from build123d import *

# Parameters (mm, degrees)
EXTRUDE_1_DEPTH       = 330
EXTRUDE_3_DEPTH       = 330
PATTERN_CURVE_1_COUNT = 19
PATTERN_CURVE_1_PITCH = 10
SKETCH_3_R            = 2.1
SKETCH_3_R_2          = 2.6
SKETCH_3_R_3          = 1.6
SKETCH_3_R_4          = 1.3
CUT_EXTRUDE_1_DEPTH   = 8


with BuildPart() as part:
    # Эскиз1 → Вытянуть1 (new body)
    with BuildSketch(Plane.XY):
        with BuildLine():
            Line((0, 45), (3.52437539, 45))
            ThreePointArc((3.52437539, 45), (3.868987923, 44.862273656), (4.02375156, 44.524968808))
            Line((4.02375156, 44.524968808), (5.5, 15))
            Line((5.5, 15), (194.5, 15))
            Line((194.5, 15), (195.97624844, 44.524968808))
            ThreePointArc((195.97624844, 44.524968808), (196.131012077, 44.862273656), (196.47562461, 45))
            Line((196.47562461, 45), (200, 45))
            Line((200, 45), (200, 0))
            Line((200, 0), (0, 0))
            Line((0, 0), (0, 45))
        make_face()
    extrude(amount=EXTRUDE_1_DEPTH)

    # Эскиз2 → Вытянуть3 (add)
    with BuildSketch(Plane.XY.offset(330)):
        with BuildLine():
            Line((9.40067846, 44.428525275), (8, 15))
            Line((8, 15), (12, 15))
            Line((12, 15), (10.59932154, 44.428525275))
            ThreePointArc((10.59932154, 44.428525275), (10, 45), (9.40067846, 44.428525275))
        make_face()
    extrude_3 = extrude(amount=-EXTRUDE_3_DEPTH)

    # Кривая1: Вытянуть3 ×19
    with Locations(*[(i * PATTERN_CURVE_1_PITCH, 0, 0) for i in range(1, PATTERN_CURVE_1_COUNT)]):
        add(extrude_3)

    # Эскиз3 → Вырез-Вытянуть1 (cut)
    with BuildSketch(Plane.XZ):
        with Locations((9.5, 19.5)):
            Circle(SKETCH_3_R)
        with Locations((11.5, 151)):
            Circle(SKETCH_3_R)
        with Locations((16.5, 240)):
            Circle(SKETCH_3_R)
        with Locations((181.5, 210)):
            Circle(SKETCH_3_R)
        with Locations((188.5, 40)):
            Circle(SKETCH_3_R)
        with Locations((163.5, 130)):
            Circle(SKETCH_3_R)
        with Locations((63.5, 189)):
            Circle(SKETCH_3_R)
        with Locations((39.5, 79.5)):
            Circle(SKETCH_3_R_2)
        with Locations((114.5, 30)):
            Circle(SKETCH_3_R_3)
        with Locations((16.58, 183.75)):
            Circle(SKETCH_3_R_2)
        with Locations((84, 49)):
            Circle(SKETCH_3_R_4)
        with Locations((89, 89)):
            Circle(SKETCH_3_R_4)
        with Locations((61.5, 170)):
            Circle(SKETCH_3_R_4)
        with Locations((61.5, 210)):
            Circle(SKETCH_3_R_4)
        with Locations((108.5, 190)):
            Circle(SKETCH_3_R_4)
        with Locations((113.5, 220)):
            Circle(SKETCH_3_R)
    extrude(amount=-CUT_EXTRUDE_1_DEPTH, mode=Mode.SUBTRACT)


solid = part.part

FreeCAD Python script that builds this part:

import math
import FreeCAD as App
import Part
import Sketcher
Q = App.Units.Quantity

doc = App.newDocument("Part")
body = doc.addObject("PartDesign::Body", "Body")

# Sketch on XY plane
sketch1 = body.newObject("Sketcher::SketchObject", "Sketch")
sketch1.AttachmentSupport = (doc.getObject("XY_Plane"), [""])
sketch1.MapMode = "FlatFace"
sketch1.addGeometry(Part.LineSegment(App.Vector(3.5, 45, 0), App.Vector(0, 45, 0)), False)
sketch1.addGeometry(Part.LineSegment(App.Vector(0, 45, 0), App.Vector(0, 0, 0)), False)
sketch1.addGeometry(Part.LineSegment(App.Vector(0, 0, 0), App.Vector(200, 0, 0)), False)
sketch1.addGeometry(Part.LineSegment(App.Vector(200, 0, 0), App.Vector(200, 45, 0)), False)
sketch1.addGeometry(Part.LineSegment(App.Vector(200, 45, 0), App.Vector(196.5, 45, 0)), False)
sketch1.addGeometry(Part.ArcOfCircle(Part.Circle(App.Vector(196.5, 44.5, 0), App.Vector(0, 0, 1), 0.5), math.radians(90), math.radians(177)), False)
sketch1.addGeometry(Part.LineSegment(App.Vector(196, 44.5, 0), App.Vector(194.5, 15, 0)), False)
sketch1.addGeometry(Part.LineSegment(App.Vector(194.5, 15, 0), App.Vector(5.5, 15, 0)), False)
sketch1.addGeometry(Part.LineSegment(App.Vector(5.5, 15, 0), App.Vector(4, 44.5, 0)), False)
sketch1.addGeometry(Part.ArcOfCircle(Part.Circle(App.Vector(3.5, 44.5, 0), App.Vector(0, 0, 1), 0.5), math.radians(3), math.radians(90)), False)
sketch1.addConstraint(Sketcher.Constraint("Coincident", 0, 2, 1, 1))
sketch1.addConstraint(Sketcher.Constraint("Coincident", 1, 2, 2, 1))
sketch1.addConstraint(Sketcher.Constraint("Coincident", 2, 2, 3, 1))
sketch1.addConstraint(Sketcher.Constraint("Coincident", 3, 2, 4, 1))
sketch1.addConstraint(Sketcher.Constraint("Tangent", 4, 2, 5, 1))
sketch1.addConstraint(Sketcher.Constraint("Tangent", 5, 2, 6, 1))
sketch1.addConstraint(Sketcher.Constraint("Coincident", 6, 2, 7, 1))
sketch1.addConstraint(Sketcher.Constraint("Coincident", 7, 2, 8, 1))
sketch1.addConstraint(Sketcher.Constraint("Tangent", 8, 2, 9, 1))
sketch1.addConstraint(Sketcher.Constraint("Tangent", 9, 2, 0, 1))
sketch1.addConstraint(Sketcher.Constraint("Horizontal", 0))
sketch1.addConstraint(Sketcher.Constraint("Vertical", 1))
sketch1.addConstraint(Sketcher.Constraint("Horizontal", 2))
sketch1.addConstraint(Sketcher.Constraint("Vertical", 3))
sketch1.addConstraint(Sketcher.Constraint("Horizontal", 4))
sketch1.addConstraint(Sketcher.Constraint("Horizontal", 7))
sketch1.addConstraint(Sketcher.Constraint("Coincident", 1, 2, -1, 1))
sketch1.addConstraint(Sketcher.Constraint("Equal", 5, 9))
sketch1.addConstraint(Sketcher.Constraint("Horizontal", 5, 3, 9, 3))
sketch1.addConstraint(Sketcher.Constraint("Horizontal", 5, 2, 8, 2))
sketch1.addConstraint(Sketcher.Constraint("Equal", 0, 4))
sketch1.addConstraint(Sketcher.Constraint("Radius", 5, Q("0.5 mm")))
sketch1.addConstraint(Sketcher.Constraint("DistanceX", 2, 1, 2, 2, Q("200 mm")))
sketch1.addConstraint(Sketcher.Constraint("DistanceX", 7, 2, 7, 1, Q("189 mm")))
sketch1.addConstraint(Sketcher.Constraint("DistanceY", 1, 2, 1, 1, Q("45 mm")))
sketch1.addConstraint(Sketcher.Constraint("DistanceY", -1, 1, 6, 2, Q("15 mm")))
sketch1.addConstraint(Sketcher.Constraint("Distance", 6, Q("29.561852 mm")))
pad1 = body.newObject("PartDesign::Pad", "Pad")
pad1.Profile = sketch1
pad1.Length = 330

# Sketch on XY plane
sketch2 = body.newObject("Sketcher::SketchObject", "Sketch001")
sketch2.AttachmentSupport = (doc.getObject("XY_Plane"), [""])
sketch2.MapMode = "FlatFace"
sketch2.AttachmentOffset = App.Placement(App.Vector(0, 0, 330), App.Rotation())
sketch2.addGeometry(Part.LineSegment(App.Vector(9.4, 44.4, 0), App.Vector(8, 15, 0)), False)
sketch2.addGeometry(Part.LineSegment(App.Vector(8, 15, 0), App.Vector(12, 15, 0)), False)
sketch2.addGeometry(Part.LineSegment(App.Vector(12, 15, 0), App.Vector(10.6, 44.4, 0)), False)
sketch2.addGeometry(Part.ArcOfCircle(Part.Circle(App.Vector(10, 44.4, 0), App.Vector(0, 0, 1), 0.6), math.radians(3), math.radians(177)), False)
sketch2.addConstraint(Sketcher.Constraint("Coincident", 0, 2, 1, 1))
sketch2.addConstraint(Sketcher.Constraint("Coincident", 1, 2, 2, 1))
sketch2.addConstraint(Sketcher.Constraint("Tangent", 2, 2, 3, 1))
sketch2.addConstraint(Sketcher.Constraint("Tangent", 3, 2, 0, 1))
sketch2.addConstraint(Sketcher.Constraint("Horizontal", 1))
sketch2.addConstraint(Sketcher.Constraint("Horizontal", 2, 2, 3, 2))
sketch2.addConstraint(Sketcher.Constraint("Radius", 3, Q("0.6 mm")))
sketch2.addConstraint(Sketcher.Constraint("DistanceX", 1, 1, 1, 2, Q("4 mm")))
sketch2.addConstraint(Sketcher.Constraint("DistanceX", -1, 1, 3, 3, Q("10 mm")))
sketch2.addConstraint(Sketcher.Constraint("DistanceY", -1, 1, 0, 2, Q("15 mm")))
sketch2.addConstraint(Sketcher.Constraint("DistanceY", -1, 1, 3, 3, Q("44.4 mm")))
pad2 = body.newObject("PartDesign::Pad", "Pad001")
pad2.Profile = sketch2
pad2.Length = 330
pad2.Reversed = True
doc.recompute()

linearpattern = body.newObject("PartDesign::LinearPattern", "LinearPattern")
linearpattern.Originals = [pad2]
linearpattern.Direction = (doc.getObject("X_Axis"), [""])
linearpattern.Mode = "offset"
linearpattern.Offset = 10
linearpattern.Occurrences = 19
body.Tip = linearpattern

# Sketch on XZ plane
sketch3 = body.newObject("Sketcher::SketchObject", "Sketch002")
sketch3.AttachmentSupport = (doc.getObject("XZ_Plane"), [""])
sketch3.MapMode = "FlatFace"
sketch3.addGeometry(Part.Circle(App.Vector(9.5, 19.5, 0), App.Vector(0, 0, 1), 2.1), False)
sketch3.addGeometry(Part.Circle(App.Vector(11.5, 151, 0), App.Vector(0, 0, 1), 2.1), False)
sketch3.addGeometry(Part.Circle(App.Vector(16.5, 240, 0), App.Vector(0, 0, 1), 2.1), False)
sketch3.addGeometry(Part.Circle(App.Vector(181.5, 210, 0), App.Vector(0, 0, 1), 2.1), False)
sketch3.addGeometry(Part.Circle(App.Vector(188.5, 40, 0), App.Vector(0, 0, 1), 2.1), False)
sketch3.addGeometry(Part.Circle(App.Vector(163.5, 130, 0), App.Vector(0, 0, 1), 2.1), False)
sketch3.addGeometry(Part.Circle(App.Vector(63.5, 189, 0), App.Vector(0, 0, 1), 2.1), False)
sketch3.addGeometry(Part.Circle(App.Vector(39.5, 79.5, 0), App.Vector(0, 0, 1), 2.6), False)
sketch3.addGeometry(Part.Circle(App.Vector(114.5, 30, 0), App.Vector(0, 0, 1), 1.6), False)
sketch3.addGeometry(Part.Circle(App.Vector(16.6, 183.8, 0), App.Vector(0, 0, 1), 2.6), False)
sketch3.addGeometry(Part.Circle(App.Vector(84, 49, 0), App.Vector(0, 0, 1), 1.3), False)
sketch3.addGeometry(Part.Circle(App.Vector(89, 89, 0), App.Vector(0, 0, 1), 1.3), False)
sketch3.addGeometry(Part.Circle(App.Vector(61.5, 170, 0), App.Vector(0, 0, 1), 1.3), False)
sketch3.addGeometry(Part.Circle(App.Vector(61.5, 210, 0), App.Vector(0, 0, 1), 1.3), False)
sketch3.addGeometry(Part.Circle(App.Vector(108.5, 190, 0), App.Vector(0, 0, 1), 1.3), False)
sketch3.addGeometry(Part.Circle(App.Vector(113.5, 220, 0), App.Vector(0, 0, 1), 2.1), False)
sketch3.addConstraint(Sketcher.Constraint("Equal", 0, 1))
sketch3.addConstraint(Sketcher.Constraint("Equal", 1, 2))
sketch3.addConstraint(Sketcher.Constraint("Equal", 2, 3))
sketch3.addConstraint(Sketcher.Constraint("Equal", 3, 4))
sketch3.addConstraint(Sketcher.Constraint("Equal", 4, 5))
sketch3.addConstraint(Sketcher.Constraint("Equal", 5, 6))
sketch3.addConstraint(Sketcher.Constraint("Equal", 7, 9))
sketch3.addConstraint(Sketcher.Constraint("Equal", 10, 11))
sketch3.addConstraint(Sketcher.Constraint("Equal", 11, 12))
sketch3.addConstraint(Sketcher.Constraint("Equal", 12, 13))
sketch3.addConstraint(Sketcher.Constraint("Equal", 13, 14))
sketch3.addConstraint(Sketcher.Constraint("Equal", 6, 15))
sketch3.addConstraint(Sketcher.Constraint("Horizontal", 3, 3, 13, 3))
sketch3.addConstraint(Sketcher.Constraint("Vertical", 12, 3, 13, 3))
sketch3.addConstraint(Sketcher.Constraint("Diameter", 0, Q("4.2 mm")))
sketch3.addConstraint(Sketcher.Constraint("Diameter", 7, Q("5.2 mm")))
sketch3.addConstraint(Sketcher.Constraint("Diameter", 8, Q("3.2 mm")))
sketch3.addConstraint(Sketcher.Constraint("Diameter", 10, Q("2.6 mm")))
sketch3.addConstraint(Sketcher.Constraint("DistanceY", -1, 1, 1, 3, Q("151 mm")))
sketch3.addConstraint(Sketcher.Constraint("DistanceY", -1, 1, 2, 3, Q("240 mm")))
sketch3.addConstraint(Sketcher.Constraint("DistanceY", -1, 1, 3, 3, Q("210 mm")))
sketch3.addConstraint(Sketcher.Constraint("DistanceY", -1, 1, 4, 3, Q("40 mm")))
sketch3.addConstraint(Sketcher.Constraint("DistanceY", -1, 1, 5, 3, Q("130 mm")))
sketch3.addConstraint(Sketcher.Constraint("DistanceY", -1, 1, 6, 3, Q("189 mm")))
sketch3.addConstraint(Sketcher.Constraint("DistanceY", -1, 1, 8, 3, Q("30 mm")))
sketch3.addConstraint(Sketcher.Constraint("DistanceX", -1, 1, 10, 3, Q("84 mm")))
sketch3.addConstraint(Sketcher.Constraint("DistanceY", -1, 1, 10, 3, Q("49 mm")))
sketch3.addConstraint(Sketcher.Constraint("DistanceX", -1, 1, 11, 3, Q("89 mm")))
sketch3.addConstraint(Sketcher.Constraint("DistanceY", -1, 1, 11, 3, Q("89 mm")))
sketch3.addConstraint(Sketcher.Constraint("DistanceY", -1, 1, 12, 3, Q("170 mm")))
sketch3.addConstraint(Sketcher.Constraint("DistanceY", -1, 1, 14, 3, Q("190 mm")))
sketch3.addConstraint(Sketcher.Constraint("DistanceY", -1, 1, 15, 3, Q("220 mm")))
sketch3.addConstraint(Sketcher.Constraint("DistanceX", 0, 3, 1, 3, Q("2 mm")))
sketch3.addConstraint(Sketcher.Constraint("DistanceX", 1, 3, 2, 3, Q("5 mm")))
sketch3.addConstraint(Sketcher.Constraint("DistanceX", 2, 3, 3, 3, Q("165 mm")))
sketch3.addConstraint(Sketcher.Constraint("DistanceX", 3, 3, 4, 3, Q("7 mm")))
sketch3.addConstraint(Sketcher.Constraint("DistanceX", 5, 3, 3, 3, Q("18 mm")))
sketch3.addConstraint(Sketcher.Constraint("DistanceX", 1, 3, 6, 3, Q("52 mm")))
sketch3.addConstraint(Sketcher.Constraint("DistanceX", 0, 3, 7, 3, Q("30 mm")))
sketch3.addConstraint(Sketcher.Constraint("DistanceY", 0, 3, 7, 3, Q("60 mm")))
sketch3.addConstraint(Sketcher.Constraint("DistanceX", 8, 3, 4, 3, Q("74 mm")))
sketch3.addConstraint(Sketcher.Constraint("DistanceX", 12, 3, 6, 3, Q("2 mm")))
sketch3.addConstraint(Sketcher.Constraint("DistanceX", 6, 3, 14, 3, Q("45 mm")))
sketch3.addConstraint(Sketcher.Constraint("DistanceX", 14, 3, 15, 3, Q("5 mm")))
sketch3.addConstraint(Sketcher.Constraint("DistanceX", -1, 1, 0, 3, Q("9.5 mm")))
sketch3.addConstraint(Sketcher.Constraint("DistanceY", -1, 1, 0, 3, Q("19.5 mm")))
sketch3.addConstraint(Sketcher.Constraint("DistanceX", -1, 1, 9, 3, Q("16.58 mm")))
sketch3.addConstraint(Sketcher.Constraint("DistanceY", -1, 1, 9, 3, Q("183.75 mm")))
pocket1 = body.newObject("PartDesign::Pocket", "Pocket")
pocket1.Profile = sketch3
pocket1.Length = 8

doc.recompute()
